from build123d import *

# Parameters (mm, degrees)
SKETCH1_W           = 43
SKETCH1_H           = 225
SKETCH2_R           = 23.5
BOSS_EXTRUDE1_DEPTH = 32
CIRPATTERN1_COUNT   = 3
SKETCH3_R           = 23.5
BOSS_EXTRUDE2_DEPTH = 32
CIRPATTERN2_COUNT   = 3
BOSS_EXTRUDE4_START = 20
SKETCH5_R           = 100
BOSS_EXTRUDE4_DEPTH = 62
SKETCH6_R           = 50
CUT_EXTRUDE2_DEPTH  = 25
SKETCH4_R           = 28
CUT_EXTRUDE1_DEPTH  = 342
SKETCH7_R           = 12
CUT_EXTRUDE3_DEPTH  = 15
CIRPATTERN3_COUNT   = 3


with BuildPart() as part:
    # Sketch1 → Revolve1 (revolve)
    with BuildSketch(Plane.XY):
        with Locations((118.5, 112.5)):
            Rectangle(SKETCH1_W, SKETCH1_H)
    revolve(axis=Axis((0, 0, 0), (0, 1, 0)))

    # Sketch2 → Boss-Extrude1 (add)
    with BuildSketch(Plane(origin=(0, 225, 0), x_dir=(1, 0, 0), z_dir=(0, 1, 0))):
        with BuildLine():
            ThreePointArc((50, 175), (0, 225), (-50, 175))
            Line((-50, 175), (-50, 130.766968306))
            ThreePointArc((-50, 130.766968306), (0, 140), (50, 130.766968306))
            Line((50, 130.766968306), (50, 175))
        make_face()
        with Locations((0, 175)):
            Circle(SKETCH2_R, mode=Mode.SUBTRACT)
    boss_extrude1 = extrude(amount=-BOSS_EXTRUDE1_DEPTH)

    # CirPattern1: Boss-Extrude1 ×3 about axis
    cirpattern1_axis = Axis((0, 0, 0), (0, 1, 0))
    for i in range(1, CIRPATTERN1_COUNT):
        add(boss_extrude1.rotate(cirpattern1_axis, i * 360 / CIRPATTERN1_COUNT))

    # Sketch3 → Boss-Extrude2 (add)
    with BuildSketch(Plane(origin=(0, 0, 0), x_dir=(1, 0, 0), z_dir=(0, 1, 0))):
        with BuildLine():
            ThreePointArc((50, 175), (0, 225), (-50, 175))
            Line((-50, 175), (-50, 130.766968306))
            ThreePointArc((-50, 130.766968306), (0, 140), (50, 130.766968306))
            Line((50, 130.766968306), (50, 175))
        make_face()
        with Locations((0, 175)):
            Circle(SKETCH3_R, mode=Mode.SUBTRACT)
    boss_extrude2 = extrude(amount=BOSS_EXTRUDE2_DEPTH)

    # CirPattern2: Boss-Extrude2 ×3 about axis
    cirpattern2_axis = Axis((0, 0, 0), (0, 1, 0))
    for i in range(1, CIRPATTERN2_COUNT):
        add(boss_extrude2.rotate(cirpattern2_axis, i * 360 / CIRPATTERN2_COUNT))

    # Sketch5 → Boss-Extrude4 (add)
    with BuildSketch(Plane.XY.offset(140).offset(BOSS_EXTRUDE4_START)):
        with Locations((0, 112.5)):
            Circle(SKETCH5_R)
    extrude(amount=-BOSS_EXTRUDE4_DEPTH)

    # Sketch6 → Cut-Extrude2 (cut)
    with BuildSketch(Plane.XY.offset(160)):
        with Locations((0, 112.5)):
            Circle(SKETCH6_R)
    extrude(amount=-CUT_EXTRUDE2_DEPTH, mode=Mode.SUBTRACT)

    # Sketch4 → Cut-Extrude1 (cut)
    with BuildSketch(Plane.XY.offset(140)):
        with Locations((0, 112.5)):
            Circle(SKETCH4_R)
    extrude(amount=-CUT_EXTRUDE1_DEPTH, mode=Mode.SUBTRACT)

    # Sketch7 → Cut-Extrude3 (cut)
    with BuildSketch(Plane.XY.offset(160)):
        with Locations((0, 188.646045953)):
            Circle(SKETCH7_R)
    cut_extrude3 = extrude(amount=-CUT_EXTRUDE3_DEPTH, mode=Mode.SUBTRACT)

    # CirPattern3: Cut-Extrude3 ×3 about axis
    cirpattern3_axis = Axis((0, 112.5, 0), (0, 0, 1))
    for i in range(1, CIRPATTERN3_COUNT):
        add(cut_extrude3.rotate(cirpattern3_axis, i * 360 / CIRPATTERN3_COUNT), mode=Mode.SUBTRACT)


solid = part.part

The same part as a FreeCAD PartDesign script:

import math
import FreeCAD as App
import Part
import Sketcher
Q = App.Units.Quantity


def add_polygon(sketch, points):
    """Adds a closed chain of lines whose ends are joined by coincident constraints."""
    first, n = sketch.GeometryCount, len(points)
    for a, b in zip(points, points[1:] + points[:1]):
        sketch.addGeometry(Part.LineSegment(App.Vector(*a, 0), App.Vector(*b, 0)), False)
    for i in range(n):
        sketch.addConstraint(Sketcher.Constraint("Coincident", first + i, 2, first + (i + 1) % n, 1))

doc = App.newDocument("Part")
body = doc.addObject("PartDesign::Body", "Body")

# Sketch on XY plane
sketch1 = doc.addObject("Sketcher::SketchObject", "Sketch")
body.addObject(sketch1)
sketch1.AttachmentSupport = (doc.XY_Plane, [""])
sketch1.MapMode = "FlatFace"
add_polygon(sketch1, [(97, 225), (97, 0), (140, 0), (140, 225)])  # lines 0-3
sketch1.addConstraint([
    Sketcher.Constraint("Vertical", 0),
    Sketcher.Constraint("Horizontal", 1),
    Sketcher.Constraint("Vertical", 2),
    Sketcher.Constraint("Horizontal", 3),
    Sketcher.Constraint("PointOnObject", 0, 2, -1),
    Sketcher.Constraint("DistanceX", 1, 1, 1, 2, Q("43 mm")),
    Sketcher.Constraint("DistanceY", 0, 2, 0, 1, Q("225 mm")),
    Sketcher.Constraint("DistanceX", -1, 1, 0, 2, Q("97 mm")),
])
revolution = doc.addObject("PartDesign::Revolution", "Revolution")
body.addObject(revolution)
revolution.Profile = sketch1
revolution.ReferenceAxis = (sketch1, ["V_Axis"])
revolution.Angle = 360

# Sketch on XZ plane
sketch2 = doc.addObject("Sketcher::SketchObject", "Sketch001")
body.addObject(sketch2)
sketch2.AttachmentSupport = (doc.XZ_Plane, [""])
sketch2.MapMode = "FlatFace"
sketch2.AttachmentOffset = App.Placement(App.Vector(0, 0, -225), App.Rotation())
sketch2.addGeometry([
    Part.ArcOfCircle(Part.Circle(App.Vector(0, -175, 0), App.Vector(0, 0, 1), 50), math.radians(180), math.radians(360)),  # 0
    Part.LineSegment(App.Vector(-50, -175, 0), App.Vector(-50, -131, 0)),  # 1
    Part.ArcOfCircle(Part.Circle(App.Vector(0, 0, 0), App.Vector(0, 0, 1), 140), math.radians(-111), math.radians(-69)),  # 2
    Part.LineSegment(App.Vector(50, -131, 0), App.Vector(50, -175, 0)),  # 3
    Part.Circle(App.Vector(0, -175, 0), App.Vector(0, 0, 1), 24),  # 4
], False)
sketch2.addConstraint([
    Sketcher.Constraint("Tangent", 0, 1, 1, 1),
    Sketcher.Constraint("Coincident", 1, 2, 2, 1),
    Sketcher.Constraint("Coincident", 2, 2, 3, 1),
    Sketcher.Constraint("Tangent", 3, 2, 0, 2),
    Sketcher.Constraint("Vertical", 1),
    Sketcher.Constraint("Vertical", 3),
    Sketcher.Constraint("Coincident", 2, 3, -1, 1),
    Sketcher.Constraint("Coincident", 4, 3, 0, 3),
    Sketcher.Constraint("PointOnObject", 0, 3, -2),
    Sketcher.Constraint("Diameter", 4, Q("47 mm")),
    Sketcher.Constraint("Radius", 0, Q("50 mm")),
    Sketcher.Constraint("Radius", 2, Q("140 mm")),
    Sketcher.Constraint("DistanceY", 0, 3, -1, 1, Q("175 mm")),
])
pad1 = doc.addObject("PartDesign::Pad", "Pad")
body.addObject(pad1)
pad1.Profile = sketch2
pad1.Length = 32
doc.recompute()

polarpattern = doc.addObject("PartDesign::PolarPattern", "PolarPattern")
body.addObject(polarpattern)
polarpattern.Originals = [pad1]
polarpattern.Axis = (doc.Y_Axis, [""])
polarpattern.Angle = 360
polarpattern.Occurrences = 3
body.Tip = polarpattern

# Sketch on XZ plane
sketch3 = doc.addObject("Sketcher::SketchObject", "Sketch002")
body.addObject(sketch3)
sketch3.AttachmentSupport = (doc.XZ_Plane, [""])
sketch3.MapMode = "FlatFace"
sketch3.addGeometry([
    Part.ArcOfCircle(Part.Circle(App.Vector(0, -175, 0), App.Vector(0, 0, 1), 50), math.radians(180), math.radians(360)),  # 0
    Part.LineSegment(App.Vector(-50, -175, 0), App.Vector(-50, -131, 0)),  # 1
    Part.ArcOfCircle(Part.Circle(App.Vector(0, 0, 0), App.Vector(0, 0, 1), 140), math.radians(-111), math.radians(-69)),  # 2
    Part.LineSegment(App.Vector(50, -131, 0), App.Vector(50, -175, 0)),  # 3
    Part.Circle(App.Vector(0, -175, 0), App.Vector(0, 0, 1), 24),  # 4
], False)
sketch3.addConstraint([
    Sketcher.Constraint("Tangent", 0, 1, 1, 1),
    Sketcher.Constraint("Coincident", 1, 2, 2, 1),
    Sketcher.Constraint("Coincident", 2, 2, 3, 1),
    Sketcher.Constraint("Tangent", 3, 2, 0, 2),
    Sketcher.Constraint("Vertical", 1),
    Sketcher.Constraint("Vertical", 3),
    Sketcher.Constraint("Coincident", 2, 3, -1, 1),
    Sketcher.Constraint("Coincident", 4, 3, 0, 3),
    Sketcher.Constraint("PointOnObject", 0, 3, -2),
    Sketcher.Constraint("Diameter", 4, Q("47 mm")),
    Sketcher.Constraint("Radius", 0, Q("50 mm")),
    Sketcher.Constraint("Radius", 2, Q("140 mm")),
    Sketcher.Constraint("DistanceY", 0, 3, -1, 1, Q("175 mm")),
])
pad2 = doc.addObject("PartDesign::Pad", "Pad001")
body.addObject(pad2)
pad2.Profile = sketch3
pad2.Length = 32
pad2.Reversed = True
doc.recompute()

polarpattern2 = doc.addObject("PartDesign::PolarPattern", "PolarPattern001")
body.addObject(polarpattern2)
polarpattern2.Originals = [pad2]
polarpattern2.Axis = (doc.Y_Axis, [""])
polarpattern2.Angle = 360
polarpattern2.Occurrences = 3
body.Tip = polarpattern2

# Sketch on XY plane
sketch4 = doc.addObject("Sketcher::SketchObject", "Sketch003")
body.addObject(sketch4)
sketch4.AttachmentSupport = (doc.XY_Plane, [""])
sketch4.MapMode = "FlatFace"
sketch4.AttachmentOffset = App.Placement(App.Vector(0, 0, 160), App.Rotation())
sketch4.addGeometry(Part.Circle(App.Vector(0, 112, 0), App.Vector(0, 0, 1), 100), False)
sketch4.addConstraint([
    Sketcher.Constraint("PointOnObject", 0, 3, -2),
    Sketcher.Constraint("Diameter", 0, Q("200 mm")),
    Sketcher.Constraint("DistanceY", -1, 1, 0, 3, Q("112.5 mm")),
])
pad3 = doc.addObject("PartDesign::Pad", "Pad002")
body.addObject(pad3)
pad3.Profile = sketch4
pad3.Length = 62
pad3.Reversed = True

# Sketch on XY plane
sketch5 = doc.addObject("Sketcher::SketchObject", "Sketch004")
body.addObject(sketch5)
sketch5.AttachmentSupport = (doc.XY_Plane, [""])
sketch5.MapMode = "FlatFace"
sketch5.AttachmentOffset = App.Placement(App.Vector(0, 0, 160), App.Rotation())
sketch5.addGeometry(Part.Circle(App.Vector(0, 112, 0), App.Vector(0, 0, 1), 50), False)
sketch5.addConstraint([
    Sketcher.Constraint("PointOnObject", 0, 3, -2),
    Sketcher.Constraint("Diameter", 0, Q("100 mm")),
    Sketcher.Constraint("DistanceY", -1, 1, 0, 3, Q("112.5 mm")),
])
pocket1 = doc.addObject("PartDesign::Pocket", "Pocket")
body.addObject(pocket1)
pocket1.Profile = sketch5
pocket1.Length = 25

# Sketch on XY plane
sketch6 = doc.addObject("Sketcher::SketchObject", "Sketch005")
body.addObject(sketch6)
sketch6.AttachmentSupport = (doc.XY_Plane, [""])
sketch6.MapMode = "FlatFace"
sketch6.AttachmentOffset = App.Placement(App.Vector(0, 0, 140), App.Rotation())
sketch6.addGeometry(Part.Circle(App.Vector(0, 112, 0), App.Vector(0, 0, 1), 28), False)
sketch6.addConstraint([
    Sketcher.Constraint("PointOnObject", 0, 3, -2),
    Sketcher.Constraint("Diameter", 0, Q("56 mm")),
    Sketcher.Constraint("DistanceY", -1, 1, 0, 3, Q("112.5 mm")),
])
pocket2 = doc.addObject("PartDesign::Pocket", "Pocket001")
body.addObject(pocket2)
pocket2.Profile = sketch6
pocket2.Length = 342

# Sketch on XY plane
sketch7 = doc.addObject("Sketcher::SketchObject", "Sketch006")
body.addObject(sketch7)
sketch7.AttachmentSupport = (doc.XY_Plane, [""])
sketch7.MapMode = "FlatFace"
sketch7.AttachmentOffset = App.Placement(App.Vector(0, 0, 160), App.Rotation())
sketch7.addGeometry(Part.Circle(App.Vector(0, 189, 0), App.Vector(0, 0, 1), 12), False)
sketch7.addConstraint([
    Sketcher.Constraint("PointOnObject", 0, 3, -2),
    Sketcher.Constraint("Diameter", 0, Q("24 mm")),
    Sketcher.Constraint("DistanceY", -1, 1, 0, 3, Q("188.646046 mm")),
])
pocket3 = doc.addObject("PartDesign::Pocket", "Pocket002")
body.addObject(pocket3)
pocket3.Profile = sketch7
pocket3.Length = 15
doc.recompute()

datumline = doc.addObject("PartDesign::Line", "DatumLine")
body.addObject(datumline)
datumline.Placement = App.Placement(App.Vector(0, 112.5, 0), App.Rotation(App.Vector(0, 0, 1), App.Vector(0, 0, 1)))
polarpattern3 = doc.addObject("PartDesign::PolarPattern", "PolarPattern002")
body.addObject(polarpattern3)
polarpattern3.Originals = [pocket3]
polarpattern3.Axis = (datumline, [""])
polarpattern3.Angle = 360
polarpattern3.Occurrences = 3
body.Tip = polarpattern3

doc.recompute()
